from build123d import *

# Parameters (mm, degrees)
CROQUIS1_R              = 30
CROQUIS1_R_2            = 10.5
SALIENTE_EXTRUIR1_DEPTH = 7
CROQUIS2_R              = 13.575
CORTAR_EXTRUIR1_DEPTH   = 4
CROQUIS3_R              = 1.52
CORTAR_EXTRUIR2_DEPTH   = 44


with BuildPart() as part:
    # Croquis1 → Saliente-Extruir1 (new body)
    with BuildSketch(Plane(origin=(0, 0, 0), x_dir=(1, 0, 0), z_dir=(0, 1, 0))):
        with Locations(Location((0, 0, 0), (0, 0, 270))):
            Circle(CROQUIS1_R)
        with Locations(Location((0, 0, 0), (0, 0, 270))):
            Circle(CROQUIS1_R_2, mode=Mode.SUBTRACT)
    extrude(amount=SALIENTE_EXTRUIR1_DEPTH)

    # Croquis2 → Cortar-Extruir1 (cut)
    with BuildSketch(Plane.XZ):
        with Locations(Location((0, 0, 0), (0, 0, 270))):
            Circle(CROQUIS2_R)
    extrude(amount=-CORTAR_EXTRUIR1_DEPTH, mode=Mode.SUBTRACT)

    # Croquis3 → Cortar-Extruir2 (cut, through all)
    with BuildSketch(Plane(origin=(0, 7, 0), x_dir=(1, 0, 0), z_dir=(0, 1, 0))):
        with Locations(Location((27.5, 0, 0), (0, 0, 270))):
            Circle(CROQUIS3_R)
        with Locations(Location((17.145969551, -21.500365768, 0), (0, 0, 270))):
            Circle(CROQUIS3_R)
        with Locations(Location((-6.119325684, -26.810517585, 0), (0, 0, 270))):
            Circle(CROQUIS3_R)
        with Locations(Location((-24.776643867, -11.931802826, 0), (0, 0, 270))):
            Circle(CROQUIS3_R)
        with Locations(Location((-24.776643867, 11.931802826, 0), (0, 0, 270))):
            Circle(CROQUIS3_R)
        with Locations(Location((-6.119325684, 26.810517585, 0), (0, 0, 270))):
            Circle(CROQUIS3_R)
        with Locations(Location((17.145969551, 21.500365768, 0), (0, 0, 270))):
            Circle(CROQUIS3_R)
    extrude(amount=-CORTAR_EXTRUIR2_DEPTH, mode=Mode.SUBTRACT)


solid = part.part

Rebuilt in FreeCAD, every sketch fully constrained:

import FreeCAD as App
import Part
import Sketcher

doc = App.newDocument("Part")
body = doc.addObject("PartDesign::Body", "Body")

# Sketch on XZ plane
sketch1 = body.newObject("Sketcher::SketchObject", "Sketch")
sketch1.AttachmentSupport = (doc.getObject("XZ_Plane"), [""])
sketch1.MapMode = "FlatFace"
sketch1.addGeometry([
    Part.Circle(App.Vector(0, 0, 0), App.Vector(0, 0, 1), 30),
    Part.Circle(App.Vector(0, 0, 0), App.Vector(0, 0, 1), 10),
], False)
sketch1.addConstraint([
    Sketcher.Constraint("Coincident", 0, 3, -1, 1),
    Sketcher.Constraint("Coincident", 1, 3, -1, 1),
    Sketcher.Constraint("Diameter", 0, 60.0),
    Sketcher.Constraint("Diameter", 1, 21.0),
])
pad1 = body.newObject("PartDesign::Pad", "Pad")
pad1.Profile = sketch1
pad1.Length = 7
pad1.Reversed = True

# Sketch on XZ plane
sketch2 = body.newObject("Sketcher::SketchObject", "Sketch001")
sketch2.AttachmentSupport = (doc.getObject("XZ_Plane"), [""])
sketch2.MapMode = "FlatFace"
sketch2.addGeometry(Part.Circle(App.Vector(0, 0, 0), App.Vector(0, 0, 1), 14), False)
sketch2.addConstraint([
    Sketcher.Constraint("Coincident", 0, 3, -1, 1),
    Sketcher.Constraint("Diameter", 0, 27.15),
])
pocket1 = body.newObject("PartDesign::Pocket", "Pocket")
pocket1.Profile = sketch2
pocket1.Length = 4

# Sketch on XZ plane
sketch3 = body.newObject("Sketcher::SketchObject", "Sketch002")
sketch3.AttachmentSupport = (doc.getObject("XZ_Plane"), [""])
sketch3.MapMode = "FlatFace"
sketch3.AttachmentOffset = App.Placement(App.Vector(0, 0, -7), App.Rotation())
sketch3.addGeometry([
    Part.Circle(App.Vector(27.5, 0, 0), App.Vector(0, 0, 1), 1.5),  # 0
    Part.Circle(App.Vector(17.1, 21.5, 0), App.Vector(0, 0, 1), 1.5),  # 1
    Part.Circle(App.Vector(-6.1, 26.8, 0), App.Vector(0, 0, 1), 1.5),  # 2
    Part.Circle(App.Vector(-24.8, 11.9, 0), App.Vector(0, 0, 1), 1.5),  # 3
    Part.Circle(App.Vector(-24.8, -11.9, 0), App.Vector(0, 0, 1), 1.5),  # 4
    Part.Circle(App.Vector(-6.1, -26.8, 0), App.Vector(0, 0, 1), 1.5),  # 5
    Part.Circle(App.Vector(17.1, -21.5, 0), App.Vector(0, 0, 1), 1.5),  # 6
], False)
sketch3.addConstraint([
    Sketcher.Constraint("Equal", 0, 1),
    Sketcher.Constraint("Equal", 1, 2),
    Sketcher.Constraint("Equal", 2, 3),
    Sketcher.Constraint("Equal", 3, 4),
    Sketcher.Constraint("Equal", 4, 5),
    Sketcher.Constraint("Equal", 5, 6),
    Sketcher.Constraint("Symmetric", 3, 3, 4, 3, -1),
    Sketcher.Constraint("Symmetric", 2, 3, 5, 3, -1),
    Sketcher.Constraint("Symmetric", 1, 3, 6, 3, -1),
    Sketcher.Constraint("PointOnObject", 0, 3, -1),
    Sketcher.Constraint("Diameter", 0, 3.04),
    Sketcher.Constraint("DistanceX", -1, 1, 0, 3, 27.5),
    Sketcher.Constraint("DistanceX", -1, 1, 1, 3, 17.14597),
    Sketcher.Constraint("DistanceY", 1, 3, 2, 3, 5.310152),
    Sketcher.Constraint("DistanceX", 3, 3, 2, 3, 18.657318),
    Sketcher.Constraint("DistanceY", 4, 3, 2, 3, 38.74232),
    Sketcher.Constraint("DistanceY", 6, 3, 1, 3, 43.000732),
    Sketcher.Constraint("DistanceX", 2, 3, -1, 1, 6.119326),
])
pocket2 = body.newObject("PartDesign::Pocket", "Pocket001")
pocket2.Profile = sketch3
pocket2.Type = "ThroughAll"
pocket2.Reversed = True

doc.recompute()
